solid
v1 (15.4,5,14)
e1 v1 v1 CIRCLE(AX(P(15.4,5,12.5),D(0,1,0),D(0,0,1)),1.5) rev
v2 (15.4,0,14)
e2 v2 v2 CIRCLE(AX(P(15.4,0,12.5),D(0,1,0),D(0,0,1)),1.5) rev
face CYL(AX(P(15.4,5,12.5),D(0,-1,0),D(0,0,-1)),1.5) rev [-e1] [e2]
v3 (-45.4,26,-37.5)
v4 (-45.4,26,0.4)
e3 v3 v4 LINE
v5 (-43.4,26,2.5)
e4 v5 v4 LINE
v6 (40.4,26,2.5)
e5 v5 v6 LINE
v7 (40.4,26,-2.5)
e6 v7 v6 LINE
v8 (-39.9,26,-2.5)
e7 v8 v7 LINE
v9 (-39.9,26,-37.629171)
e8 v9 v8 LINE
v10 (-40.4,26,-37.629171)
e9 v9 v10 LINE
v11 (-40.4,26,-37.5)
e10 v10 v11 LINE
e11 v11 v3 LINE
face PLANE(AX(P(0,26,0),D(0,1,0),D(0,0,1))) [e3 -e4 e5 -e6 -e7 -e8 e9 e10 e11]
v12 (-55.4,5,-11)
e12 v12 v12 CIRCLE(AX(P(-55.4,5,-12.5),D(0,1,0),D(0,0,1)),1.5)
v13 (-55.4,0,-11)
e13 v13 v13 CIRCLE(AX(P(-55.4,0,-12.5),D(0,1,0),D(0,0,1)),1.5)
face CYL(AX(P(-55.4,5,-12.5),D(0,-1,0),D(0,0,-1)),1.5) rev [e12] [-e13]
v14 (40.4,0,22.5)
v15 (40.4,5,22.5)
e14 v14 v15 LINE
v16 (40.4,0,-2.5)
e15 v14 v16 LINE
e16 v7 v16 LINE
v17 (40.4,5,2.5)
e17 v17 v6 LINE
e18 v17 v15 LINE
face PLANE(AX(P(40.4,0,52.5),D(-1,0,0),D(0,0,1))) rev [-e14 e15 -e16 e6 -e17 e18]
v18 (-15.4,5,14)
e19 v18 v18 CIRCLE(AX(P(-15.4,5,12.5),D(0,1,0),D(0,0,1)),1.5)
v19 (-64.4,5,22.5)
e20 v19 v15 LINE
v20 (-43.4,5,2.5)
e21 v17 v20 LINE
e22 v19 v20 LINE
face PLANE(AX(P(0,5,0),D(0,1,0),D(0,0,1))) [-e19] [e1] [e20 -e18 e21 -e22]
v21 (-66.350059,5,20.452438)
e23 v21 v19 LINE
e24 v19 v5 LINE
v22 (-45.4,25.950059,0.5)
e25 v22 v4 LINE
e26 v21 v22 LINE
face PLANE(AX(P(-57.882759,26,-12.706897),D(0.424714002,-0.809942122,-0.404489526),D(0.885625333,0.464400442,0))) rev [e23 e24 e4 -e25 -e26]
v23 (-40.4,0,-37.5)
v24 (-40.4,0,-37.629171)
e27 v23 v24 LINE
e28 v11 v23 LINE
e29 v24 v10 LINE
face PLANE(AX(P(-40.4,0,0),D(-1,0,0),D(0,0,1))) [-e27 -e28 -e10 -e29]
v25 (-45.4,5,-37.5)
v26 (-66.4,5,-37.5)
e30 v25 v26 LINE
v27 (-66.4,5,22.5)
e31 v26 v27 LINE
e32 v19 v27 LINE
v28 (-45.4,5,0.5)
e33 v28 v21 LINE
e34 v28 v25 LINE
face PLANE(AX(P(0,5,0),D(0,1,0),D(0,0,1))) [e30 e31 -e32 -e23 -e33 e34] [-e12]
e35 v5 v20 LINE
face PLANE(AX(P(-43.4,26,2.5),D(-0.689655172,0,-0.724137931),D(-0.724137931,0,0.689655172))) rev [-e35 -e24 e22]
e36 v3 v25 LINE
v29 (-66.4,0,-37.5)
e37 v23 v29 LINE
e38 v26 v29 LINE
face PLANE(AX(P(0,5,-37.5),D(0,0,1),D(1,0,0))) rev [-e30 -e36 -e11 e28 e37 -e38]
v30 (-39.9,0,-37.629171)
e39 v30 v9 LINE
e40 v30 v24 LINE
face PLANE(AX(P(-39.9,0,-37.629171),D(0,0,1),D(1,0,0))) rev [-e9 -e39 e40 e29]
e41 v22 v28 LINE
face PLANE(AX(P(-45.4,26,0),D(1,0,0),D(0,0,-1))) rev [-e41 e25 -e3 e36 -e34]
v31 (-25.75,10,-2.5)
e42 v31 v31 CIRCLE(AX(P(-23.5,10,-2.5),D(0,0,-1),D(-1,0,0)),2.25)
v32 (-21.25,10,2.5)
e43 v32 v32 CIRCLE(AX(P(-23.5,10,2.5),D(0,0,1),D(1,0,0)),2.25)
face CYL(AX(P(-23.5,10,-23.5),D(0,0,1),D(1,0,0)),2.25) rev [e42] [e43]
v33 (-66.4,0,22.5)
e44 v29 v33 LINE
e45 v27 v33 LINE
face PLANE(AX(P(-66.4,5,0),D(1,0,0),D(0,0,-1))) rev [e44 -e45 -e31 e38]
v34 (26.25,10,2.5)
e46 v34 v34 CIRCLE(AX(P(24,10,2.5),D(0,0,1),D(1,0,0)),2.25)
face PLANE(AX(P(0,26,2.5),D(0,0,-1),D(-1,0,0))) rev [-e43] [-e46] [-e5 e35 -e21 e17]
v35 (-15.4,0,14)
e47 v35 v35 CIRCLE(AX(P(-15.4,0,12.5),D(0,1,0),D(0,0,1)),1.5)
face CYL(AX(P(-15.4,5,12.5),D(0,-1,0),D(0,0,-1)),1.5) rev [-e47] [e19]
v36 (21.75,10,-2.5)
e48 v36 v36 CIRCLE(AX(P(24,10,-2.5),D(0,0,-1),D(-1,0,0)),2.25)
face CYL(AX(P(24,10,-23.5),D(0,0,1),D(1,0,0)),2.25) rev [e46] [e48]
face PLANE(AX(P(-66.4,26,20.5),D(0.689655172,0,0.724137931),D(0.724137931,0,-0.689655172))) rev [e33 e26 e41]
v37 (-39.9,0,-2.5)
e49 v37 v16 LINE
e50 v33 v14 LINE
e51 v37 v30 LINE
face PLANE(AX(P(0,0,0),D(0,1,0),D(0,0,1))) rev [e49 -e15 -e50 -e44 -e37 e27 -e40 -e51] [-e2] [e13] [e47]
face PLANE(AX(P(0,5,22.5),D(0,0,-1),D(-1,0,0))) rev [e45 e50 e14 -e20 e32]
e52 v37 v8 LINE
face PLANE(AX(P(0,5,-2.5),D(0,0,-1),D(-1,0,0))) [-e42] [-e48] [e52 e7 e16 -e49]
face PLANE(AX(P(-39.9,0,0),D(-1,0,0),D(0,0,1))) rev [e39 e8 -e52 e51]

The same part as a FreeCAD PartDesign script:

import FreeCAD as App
import Part
import Sketcher

V = App.Vector
Q = App.Units.Quantity


def add_polygon(sketch, points):
    """Adds a closed chain of lines whose ends are joined by coincident constraints."""
    first, n = sketch.GeometryCount, len(points)
    for a, b in zip(points, points[1:] + points[:1]):
        sketch.addGeometry(Part.LineSegment(App.Vector(*a, 0), App.Vector(*b, 0)), False)
    for i in range(n):
        sketch.addConstraint(Sketcher.Constraint("Coincident", first + i, 2, first + (i + 1) % n, 1))

doc = App.newDocument("Part")
params = doc.addObject("Spreadsheet::Sheet", "Params")
for row, (alias, value) in enumerate([
    ("sketch1_diameter", "3 mm"),
    ("sketch1_height", "25 mm"),
    ("sketch1_width", "80.8 mm"),
    ("pad1_length", "5 mm"),
    ("sketch2_height", "5 mm"),
    ("sketch2_width", "80.8 mm"),
    ("pad2_length", "26 mm"),
    ("sketch3_diameter", "3 mm"),
    ("sketch3_width", "26 mm"),
    ("sketch3_height", "60 mm"),
    ("pad3_length", "5 mm"),
    ("sketch4_width", "5 mm"),
    ("sketch4_height", "40 mm"),
    ("pad4_length", "26 mm"),
    ("sketch5_diameter", "4.5 mm"),
    ("pocket1_length", "26 mm"),
    ("sketch6_width", "2 mm"),
    ("sketch6_length", "29 mm"),
    ("pad5_length", "21 mm"),
    ("pocket2_length", "21 mm"),
    ("pocket3_length", "90 mm"),
    ("sketch9_width", "26 mm"),
    ("pad6_length", "0.5 mm"),
], start=1):
    params.set(f"A{row}", alias)
    params.set(f"B{row}", "=" + value)
    params.setAlias(f"B{row}", alias)

body = doc.addObject("PartDesign::Body", "Body")

# Sketch on XZ plane
sketch1 = body.newObject("Sketcher::SketchObject", "Sketch")
sketch1.AttachmentSupport = (doc.getObject("XZ_Plane"), [""])
sketch1.MapMode = "FlatFace"
add_polygon(sketch1, [(-40.4, -2.5), (-40.4, 22.5), (40.4, 22.5), (40.4, -2.5)])  # lines 0-3
sketch1.addGeometry(Part.Circle(V(-15.4, 12.5, 0), V(0, 0, 1), 1.5), False)  # 4
sketch1.addGeometry(Part.Circle(V(15.4, 12.5, 0), V(0, 0, 1), 1.5), False)  # 5
sketch1.addConstraint([
    Sketcher.Constraint("Vertical", 0),
    Sketcher.Constraint("Horizontal", 1),
    Sketcher.Constraint("Vertical", 2),
    Sketcher.Constraint("Horizontal", 3),
    Sketcher.Constraint("Equal", 4, 5),
    Sketcher.Constraint("Symmetric", 4, 3, 5, 3, -2),
    Sketcher.Constraint("Diameter", 4, Q("3 mm")),
    Sketcher.Constraint("DistanceY", 0, 1, 0, 2, Q("25 mm")),
    Sketcher.Constraint("DistanceX", 1, 1, 1, 2, Q("80.8 mm")),
    Sketcher.Constraint("DistanceX", 0, 2, 4, 3, Q("25 mm")),
    Sketcher.Constraint("DistanceY", 4, 3, 0, 2, Q("10 mm")),
    Sketcher.Constraint("DistanceX", 5, 3, 1, 2, Q("25 mm")),
    Sketcher.Constraint("DistanceY", -1, 1, 4, 3, Q("12.5 mm")),
])
sketch1.setExpression("Constraints[10]", "Params.sketch1_diameter")
sketch1.setExpression("Constraints[11]", "Params.sketch1_height")
sketch1.setExpression("Constraints[12]", "Params.sketch1_width")
pad1 = body.newObject("PartDesign::Pad", "Pad")
pad1.Profile = sketch1
pad1.setExpression("Length", "Params.pad1_length")
pad1.Reversed = True

# Sketch on XZ plane
sketch2 = body.newObject("Sketcher::SketchObject", "Sketch001")
sketch2.AttachmentSupport = (doc.getObject("XZ_Plane"), [""])
sketch2.MapMode = "FlatFace"
add_polygon(sketch2, [(-40, -2), (-40, 2), (40, 2), (40, -2)])  # lines 0-3
sketch2.addConstraint([
    Sketcher.Constraint("Vertical", 0),
    Sketcher.Constraint("Horizontal", 1),
    Sketcher.Constraint("Vertical", 2),
    Sketcher.Constraint("Horizontal", 3),
    Sketcher.Constraint("Symmetric", 0, 2, 2, 2, -1, 1),
    Sketcher.Constraint("DistanceY", 0, 1, 0, 2, Q("5 mm")),
    Sketcher.Constraint("DistanceX", 1, 1, 1, 2, Q("80.8 mm")),
])
sketch2.setExpression("Constraints[9]", "Params.sketch2_height")
sketch2.setExpression("Constraints[10]", "Params.sketch2_width")
pad2 = body.newObject("PartDesign::Pad", "Pad001")
pad2.Profile = sketch2
pad2.setExpression("Length", "Params.pad2_length")
pad2.Reversed = True

# Sketch on XZ plane
sketch3 = body.newObject("Sketcher::SketchObject", "Sketch002")
sketch3.AttachmentSupport = (doc.getObject("XZ_Plane"), [""])
sketch3.MapMode = "FlatFace"
add_polygon(sketch3, [(-40.4, -37.5), (-66.4, -37.5), (-66.4, 22.5), (-40.4, 22.5)])  # lines 0-3
sketch3.addGeometry(Part.Circle(V(-55.4, -12.5, 0), V(0, 0, 1), 1.5), False)  # 4
add_polygon(sketch3, [(40.4, 22.5), (66.4, 22.5), (66.4, -37.5), (40.4, -37.5)])  # lines 5-8
sketch3.addGeometry(Part.Circle(V(55.4, -12.5, 0), V(0, 0, 1), 1.5), False)  # 9
sketch3.addConstraint([
    Sketcher.Constraint("Horizontal", 0),
    Sketcher.Constraint("Vertical", 1),
    Sketcher.Constraint("Horizontal", 2),
    Sketcher.Constraint("Vertical", 3),
    Sketcher.Constraint("Horizontal", 5),
    Sketcher.Constraint("Vertical", 6),
    Sketcher.Constraint("Horizontal", 7),
    Sketcher.Constraint("Vertical", 8),
    Sketcher.Constraint("Equal", 4, 9),
    Sketcher.Constraint("Symmetric", 4, 3, 9, 3, -2),
    Sketcher.Constraint("Symmetric", 1, 2, 5, 2, -2),
    Sketcher.Constraint("Symmetric", 3, 2, 7, 2, -2),
    Sketcher.Constraint("Diameter", 4, Q("3 mm")),
    Sketcher.Constraint("DistanceX", 0, 2, 0, 1, Q("26 mm")),
    Sketcher.Constraint("DistanceY", 1, 1, 1, 2, Q("60 mm")),
    Sketcher.Constraint("DistanceX", 0, 2, 4, 3, Q("11 mm")),
    Sketcher.Constraint("DistanceY", 0, 2, 4, 3, Q("25 mm")),
    Sketcher.Constraint("DistanceX", 4, 3, -1, 1, Q("55.4 mm")),
    Sketcher.Constraint("DistanceY", 4, 3, -1, 1, Q("12.5 mm")),
])
sketch3.setExpression("Constraints[20]", "Params.sketch3_diameter")
sketch3.setExpression("Constraints[21]", "Params.sketch3_width")
sketch3.setExpression("Constraints[22]", "Params.sketch3_height")
pad3 = body.newObject("PartDesign::Pad", "Pad002")
pad3.Profile = sketch3
pad3.setExpression("Length", "Params.pad3_length")
pad3.Reversed = True

# Sketch on XZ plane
sketch4 = body.newObject("Sketcher::SketchObject", "Sketch003")
sketch4.AttachmentSupport = (doc.getObject("XZ_Plane"), [""])
sketch4.MapMode = "FlatFace"
add_polygon(sketch4, [(-45, 2), (-40, 2), (-40, -38), (-45, -38)])  # lines 0-3
add_polygon(sketch4, [(40, 2), (45, 2), (45, -38), (40, -38)])  # lines 4-7
sketch4.addConstraint([
    Sketcher.Constraint("Horizontal", 0),
    Sketcher.Constraint("Vertical", 1),
    Sketcher.Constraint("Horizontal", 2),
    Sketcher.Constraint("Vertical", 3),
    Sketcher.Constraint("Horizontal", 4),
    Sketcher.Constraint("Vertical", 5),
    Sketcher.Constraint("Horizontal", 6),
    Sketcher.Constraint("Vertical", 7),
    Sketcher.Constraint("Symmetric", 3, 2, 4, 2, -2),
    Sketcher.Constraint("Symmetric", 1, 2, 6, 2, -2),
    Sketcher.Constraint("DistanceX", 0, 1, 0, 2, Q("5 mm")),
    Sketcher.Constraint("DistanceY", 1, 2, 1, 1, Q("40 mm")),
    Sketcher.Constraint("DistanceX", 0, 2, -1, 1, Q("40.4 mm")),
    Sketcher.Constraint("DistanceY", -1, 1, 0, 2, Q("2.5 mm")),
])
sketch4.setExpression("Constraints[18]", "Params.sketch4_width")
sketch4.setExpression("Constraints[19]", "Params.sketch4_height")
pad4 = body.newObject("PartDesign::Pad", "Pad003")
pad4.Profile = sketch4
pad4.setExpression("Length", "Params.pad4_length")
pad4.Reversed = True

# Sketch on XY plane
sketch5 = body.newObject("Sketcher::SketchObject", "Sketch004")
sketch5.AttachmentSupport = (doc.getObject("XY_Plane"), [""])
sketch5.MapMode = "FlatFace"
sketch5.AttachmentOffset = App.Placement(V(0, 0, 2.5), App.Rotation())
sketch5.addGeometry([
    Part.Circle(V(-23.5, 10, 0), V(0, 0, 1), 2.2),
    Part.Circle(V(24, 10, 0), V(0, 0, 1), 2.2),
], False)
sketch5.addConstraint([
    Sketcher.Constraint("Equal", 0, 1),
    Sketcher.Constraint("Horizontal", 0, 3, 1, 3),
    Sketcher.Constraint("Diameter", 0, Q("4.5 mm")),
    Sketcher.Constraint("DistanceY", -1, 1, 0, 3, Q("10 mm")),
    Sketcher.Constraint("DistanceX", -1, 1, 1, 3, Q("24 mm")),
    Sketcher.Constraint("DistanceX", 0, 3, -1, 1, Q("23.5 mm")),
])
sketch5.setExpression("Constraints[2]", "Params.sketch5_diameter")
pocket1 = body.newObject("PartDesign::Pocket", "Pocket")
pocket1.Profile = sketch5
pocket1.setExpression("Length", "Params.pocket1_length")

# Sketch on XZ plane
sketch6 = body.newObject("Sketcher::SketchObject", "Sketch005")
sketch6.AttachmentSupport = (doc.getObject("XZ_Plane"), [""])
sketch6.MapMode = "FlatFace"
sketch6.AttachmentOffset = App.Placement(V(0, 0, -5), App.Rotation())
add_polygon(sketch6, [(-45.4, 2.5), (-45.4, 0.5), (-66.4, 20.5), (-66.4, 22.5), (-64.4, 22.5), (-43.4, 2.5)])  # lines 0-5
sketch6.addConstraint([
    Sketcher.Constraint("Vertical", 0),
    Sketcher.Constraint("Vertical", 2),
    Sketcher.Constraint("Horizontal", 3),
    Sketcher.Constraint("Horizontal", 5),
    Sketcher.Constraint("Parallel", 1, 4),
    Sketcher.Constraint("Equal", 3, 5),
    Sketcher.Constraint("Equal", 5, 0),
    Sketcher.Constraint("DistanceX", 3, 1, 3, 2, Q("2 mm")),
    Sketcher.Constraint("Distance", 1, Q("29 mm")),
    Sketcher.Constraint("DistanceX", 1, 2, 0, 2, Q("21 mm")),
    Sketcher.Constraint("DistanceX", 0, 2, -1, 1, Q("45.4 mm")),
    Sketcher.Constraint("DistanceY", -1, 1, 0, 2, Q("0.5 mm")),
])
sketch6.setExpression("Constraints[13]", "Params.sketch6_width")
sketch6.setExpression("Constraints[14]", "Params.sketch6_length")
pad5 = body.newObject("PartDesign::Pad", "Pad004")
pad5.Profile = sketch6
pad5.setExpression("Length", "Params.pad5_length")
pad5.Reversed = True

# Sketch on an angled plane
sketch7 = body.newObject("Sketcher::SketchObject", "Sketch006")
sketch7.Placement = App.Placement(V(-19.393579, 0, -20.363258), App.Rotation(V(0.724137931, 0, -0.689655172), V(0, 0.999999999, 0), V(0.689655172, 0, 0.724137931), "ZXY"))
add_polygon(sketch7, [(-62, 5), (-33, 26), (-26, 31), (-83, 33), (-84, 5)])  # lines 0-4
sketch7.addConstraint([
    Sketcher.Constraint("Horizontal", 4),
    Sketcher.Constraint("Parallel", 0, 1),
    Sketcher.Constraint("Perpendicular", 2, 3),
    Sketcher.Constraint("DistanceY", -1, 1, 0, 2, Q("26 mm")),
    Sketcher.Constraint("DistanceY", -1, 1, 3, 2, Q("5 mm")),
    Sketcher.Constraint("DistanceX", 4, 2, 0, 2, Q("29 mm")),
    Sketcher.Constraint("DistanceY", 1, 2, 2, 2, Q("2.577598 mm")),
    Sketcher.Constraint("Distance", 2, Q("56.331609 mm")),
    Sketcher.Constraint("DistanceX", 4, 1, 4, 2, Q("21.908884 mm")),
    Sketcher.Constraint("DistanceX", 1, 2, -1, 1, Q("26.48695 mm")),
])
pocket2 = body.newObject("PartDesign::Pocket", "Pocket001")
pocket2.Profile = sketch7
pocket2.setExpression("Length", "Params.pocket2_length")
doc.recompute()

mirrored = body.newObject("PartDesign::Mirrored", "Mirrored")
mirrored.Originals = [pad5]
mirrored.MirrorPlane = (doc.getObject("YZ_Plane"), [""])
body.Tip = mirrored
doc.recompute()

mirrored2 = body.newObject("PartDesign::Mirrored", "Mirrored001")
mirrored2.Originals = [pocket2]
mirrored2.MirrorPlane = (doc.getObject("YZ_Plane"), [""])
body.Tip = mirrored2

# Sketch on XY plane
sketch8 = body.newObject("Sketcher::SketchObject", "Sketch007")
sketch8.AttachmentSupport = (doc.getObject("XY_Plane"), [""])
sketch8.MapMode = "FlatFace"
sketch8.AttachmentOffset = App.Placement(V(0, 0, -37.5), App.Rotation())
add_polygon(sketch8, [(77, 40), (77, 0), (40, 0), (40, 40)])  # lines 0-3
sketch8.addConstraint([
    Sketcher.Constraint("Vertical", 0),
    Sketcher.Constraint("Horizontal", 1),
    Sketcher.Constraint("Vertical", 2),
    Sketcher.Constraint("Horizontal", 3),
    Sketcher.Constraint("PointOnObject", 0, 2, -1),
    Sketcher.Constraint("DistanceX", -1, 1, 1, 2, Q("40.4 mm")),
    Sketcher.Constraint("DistanceX", 1, 2, 1, 1, Q("36.882037 mm")),
    Sketcher.Constraint("DistanceY", 0, 2, 0, 1, Q("40.226112 mm")),
])
pocket3 = body.newObject("PartDesign::Pocket", "Pocket002")
pocket3.Profile = sketch8
pocket3.setExpression("Length", "Params.pocket3_length")
pocket3.Reversed = True

# Sketch on YZ plane
sketch9 = body.newObject("Sketcher::SketchObject", "Sketch008")
sketch9.AttachmentSupport = (doc.getObject("YZ_Plane"), [""])
sketch9.MapMode = "FlatFace"
sketch9.AttachmentOffset = App.Placement(V(0, 0, -40.4), App.Rotation())
add_polygon(sketch9, [(26, -2), (0, -2), (0, -38), (26, -38)])  # lines 0-3
sketch9.addConstraint([
    Sketcher.Constraint("Horizontal", 0),
    Sketcher.Constraint("Vertical", 1),
    Sketcher.Constraint("Horizontal", 2),
    Sketcher.Constraint("Vertical", 3),
    Sketcher.Constraint("PointOnObject", 0, 2, -2),
    Sketcher.Constraint("DistanceX", 0, 2, 0, 1, Q("26 mm")),
    Sketcher.Constraint("DistanceY", 1, 2, 1, 1, Q("35.258343 mm")),
    Sketcher.Constraint("DistanceY", 0, 2, -1, 1, Q("2.370829 mm")),
])
sketch9.setExpression("Constraints[9]", "Params.sketch9_width")
pad6 = body.newObject("PartDesign::Pad", "Pad005")
pad6.Profile = sketch9
pad6.setExpression("Length", "Params.pad6_length")

doc.recompute()
